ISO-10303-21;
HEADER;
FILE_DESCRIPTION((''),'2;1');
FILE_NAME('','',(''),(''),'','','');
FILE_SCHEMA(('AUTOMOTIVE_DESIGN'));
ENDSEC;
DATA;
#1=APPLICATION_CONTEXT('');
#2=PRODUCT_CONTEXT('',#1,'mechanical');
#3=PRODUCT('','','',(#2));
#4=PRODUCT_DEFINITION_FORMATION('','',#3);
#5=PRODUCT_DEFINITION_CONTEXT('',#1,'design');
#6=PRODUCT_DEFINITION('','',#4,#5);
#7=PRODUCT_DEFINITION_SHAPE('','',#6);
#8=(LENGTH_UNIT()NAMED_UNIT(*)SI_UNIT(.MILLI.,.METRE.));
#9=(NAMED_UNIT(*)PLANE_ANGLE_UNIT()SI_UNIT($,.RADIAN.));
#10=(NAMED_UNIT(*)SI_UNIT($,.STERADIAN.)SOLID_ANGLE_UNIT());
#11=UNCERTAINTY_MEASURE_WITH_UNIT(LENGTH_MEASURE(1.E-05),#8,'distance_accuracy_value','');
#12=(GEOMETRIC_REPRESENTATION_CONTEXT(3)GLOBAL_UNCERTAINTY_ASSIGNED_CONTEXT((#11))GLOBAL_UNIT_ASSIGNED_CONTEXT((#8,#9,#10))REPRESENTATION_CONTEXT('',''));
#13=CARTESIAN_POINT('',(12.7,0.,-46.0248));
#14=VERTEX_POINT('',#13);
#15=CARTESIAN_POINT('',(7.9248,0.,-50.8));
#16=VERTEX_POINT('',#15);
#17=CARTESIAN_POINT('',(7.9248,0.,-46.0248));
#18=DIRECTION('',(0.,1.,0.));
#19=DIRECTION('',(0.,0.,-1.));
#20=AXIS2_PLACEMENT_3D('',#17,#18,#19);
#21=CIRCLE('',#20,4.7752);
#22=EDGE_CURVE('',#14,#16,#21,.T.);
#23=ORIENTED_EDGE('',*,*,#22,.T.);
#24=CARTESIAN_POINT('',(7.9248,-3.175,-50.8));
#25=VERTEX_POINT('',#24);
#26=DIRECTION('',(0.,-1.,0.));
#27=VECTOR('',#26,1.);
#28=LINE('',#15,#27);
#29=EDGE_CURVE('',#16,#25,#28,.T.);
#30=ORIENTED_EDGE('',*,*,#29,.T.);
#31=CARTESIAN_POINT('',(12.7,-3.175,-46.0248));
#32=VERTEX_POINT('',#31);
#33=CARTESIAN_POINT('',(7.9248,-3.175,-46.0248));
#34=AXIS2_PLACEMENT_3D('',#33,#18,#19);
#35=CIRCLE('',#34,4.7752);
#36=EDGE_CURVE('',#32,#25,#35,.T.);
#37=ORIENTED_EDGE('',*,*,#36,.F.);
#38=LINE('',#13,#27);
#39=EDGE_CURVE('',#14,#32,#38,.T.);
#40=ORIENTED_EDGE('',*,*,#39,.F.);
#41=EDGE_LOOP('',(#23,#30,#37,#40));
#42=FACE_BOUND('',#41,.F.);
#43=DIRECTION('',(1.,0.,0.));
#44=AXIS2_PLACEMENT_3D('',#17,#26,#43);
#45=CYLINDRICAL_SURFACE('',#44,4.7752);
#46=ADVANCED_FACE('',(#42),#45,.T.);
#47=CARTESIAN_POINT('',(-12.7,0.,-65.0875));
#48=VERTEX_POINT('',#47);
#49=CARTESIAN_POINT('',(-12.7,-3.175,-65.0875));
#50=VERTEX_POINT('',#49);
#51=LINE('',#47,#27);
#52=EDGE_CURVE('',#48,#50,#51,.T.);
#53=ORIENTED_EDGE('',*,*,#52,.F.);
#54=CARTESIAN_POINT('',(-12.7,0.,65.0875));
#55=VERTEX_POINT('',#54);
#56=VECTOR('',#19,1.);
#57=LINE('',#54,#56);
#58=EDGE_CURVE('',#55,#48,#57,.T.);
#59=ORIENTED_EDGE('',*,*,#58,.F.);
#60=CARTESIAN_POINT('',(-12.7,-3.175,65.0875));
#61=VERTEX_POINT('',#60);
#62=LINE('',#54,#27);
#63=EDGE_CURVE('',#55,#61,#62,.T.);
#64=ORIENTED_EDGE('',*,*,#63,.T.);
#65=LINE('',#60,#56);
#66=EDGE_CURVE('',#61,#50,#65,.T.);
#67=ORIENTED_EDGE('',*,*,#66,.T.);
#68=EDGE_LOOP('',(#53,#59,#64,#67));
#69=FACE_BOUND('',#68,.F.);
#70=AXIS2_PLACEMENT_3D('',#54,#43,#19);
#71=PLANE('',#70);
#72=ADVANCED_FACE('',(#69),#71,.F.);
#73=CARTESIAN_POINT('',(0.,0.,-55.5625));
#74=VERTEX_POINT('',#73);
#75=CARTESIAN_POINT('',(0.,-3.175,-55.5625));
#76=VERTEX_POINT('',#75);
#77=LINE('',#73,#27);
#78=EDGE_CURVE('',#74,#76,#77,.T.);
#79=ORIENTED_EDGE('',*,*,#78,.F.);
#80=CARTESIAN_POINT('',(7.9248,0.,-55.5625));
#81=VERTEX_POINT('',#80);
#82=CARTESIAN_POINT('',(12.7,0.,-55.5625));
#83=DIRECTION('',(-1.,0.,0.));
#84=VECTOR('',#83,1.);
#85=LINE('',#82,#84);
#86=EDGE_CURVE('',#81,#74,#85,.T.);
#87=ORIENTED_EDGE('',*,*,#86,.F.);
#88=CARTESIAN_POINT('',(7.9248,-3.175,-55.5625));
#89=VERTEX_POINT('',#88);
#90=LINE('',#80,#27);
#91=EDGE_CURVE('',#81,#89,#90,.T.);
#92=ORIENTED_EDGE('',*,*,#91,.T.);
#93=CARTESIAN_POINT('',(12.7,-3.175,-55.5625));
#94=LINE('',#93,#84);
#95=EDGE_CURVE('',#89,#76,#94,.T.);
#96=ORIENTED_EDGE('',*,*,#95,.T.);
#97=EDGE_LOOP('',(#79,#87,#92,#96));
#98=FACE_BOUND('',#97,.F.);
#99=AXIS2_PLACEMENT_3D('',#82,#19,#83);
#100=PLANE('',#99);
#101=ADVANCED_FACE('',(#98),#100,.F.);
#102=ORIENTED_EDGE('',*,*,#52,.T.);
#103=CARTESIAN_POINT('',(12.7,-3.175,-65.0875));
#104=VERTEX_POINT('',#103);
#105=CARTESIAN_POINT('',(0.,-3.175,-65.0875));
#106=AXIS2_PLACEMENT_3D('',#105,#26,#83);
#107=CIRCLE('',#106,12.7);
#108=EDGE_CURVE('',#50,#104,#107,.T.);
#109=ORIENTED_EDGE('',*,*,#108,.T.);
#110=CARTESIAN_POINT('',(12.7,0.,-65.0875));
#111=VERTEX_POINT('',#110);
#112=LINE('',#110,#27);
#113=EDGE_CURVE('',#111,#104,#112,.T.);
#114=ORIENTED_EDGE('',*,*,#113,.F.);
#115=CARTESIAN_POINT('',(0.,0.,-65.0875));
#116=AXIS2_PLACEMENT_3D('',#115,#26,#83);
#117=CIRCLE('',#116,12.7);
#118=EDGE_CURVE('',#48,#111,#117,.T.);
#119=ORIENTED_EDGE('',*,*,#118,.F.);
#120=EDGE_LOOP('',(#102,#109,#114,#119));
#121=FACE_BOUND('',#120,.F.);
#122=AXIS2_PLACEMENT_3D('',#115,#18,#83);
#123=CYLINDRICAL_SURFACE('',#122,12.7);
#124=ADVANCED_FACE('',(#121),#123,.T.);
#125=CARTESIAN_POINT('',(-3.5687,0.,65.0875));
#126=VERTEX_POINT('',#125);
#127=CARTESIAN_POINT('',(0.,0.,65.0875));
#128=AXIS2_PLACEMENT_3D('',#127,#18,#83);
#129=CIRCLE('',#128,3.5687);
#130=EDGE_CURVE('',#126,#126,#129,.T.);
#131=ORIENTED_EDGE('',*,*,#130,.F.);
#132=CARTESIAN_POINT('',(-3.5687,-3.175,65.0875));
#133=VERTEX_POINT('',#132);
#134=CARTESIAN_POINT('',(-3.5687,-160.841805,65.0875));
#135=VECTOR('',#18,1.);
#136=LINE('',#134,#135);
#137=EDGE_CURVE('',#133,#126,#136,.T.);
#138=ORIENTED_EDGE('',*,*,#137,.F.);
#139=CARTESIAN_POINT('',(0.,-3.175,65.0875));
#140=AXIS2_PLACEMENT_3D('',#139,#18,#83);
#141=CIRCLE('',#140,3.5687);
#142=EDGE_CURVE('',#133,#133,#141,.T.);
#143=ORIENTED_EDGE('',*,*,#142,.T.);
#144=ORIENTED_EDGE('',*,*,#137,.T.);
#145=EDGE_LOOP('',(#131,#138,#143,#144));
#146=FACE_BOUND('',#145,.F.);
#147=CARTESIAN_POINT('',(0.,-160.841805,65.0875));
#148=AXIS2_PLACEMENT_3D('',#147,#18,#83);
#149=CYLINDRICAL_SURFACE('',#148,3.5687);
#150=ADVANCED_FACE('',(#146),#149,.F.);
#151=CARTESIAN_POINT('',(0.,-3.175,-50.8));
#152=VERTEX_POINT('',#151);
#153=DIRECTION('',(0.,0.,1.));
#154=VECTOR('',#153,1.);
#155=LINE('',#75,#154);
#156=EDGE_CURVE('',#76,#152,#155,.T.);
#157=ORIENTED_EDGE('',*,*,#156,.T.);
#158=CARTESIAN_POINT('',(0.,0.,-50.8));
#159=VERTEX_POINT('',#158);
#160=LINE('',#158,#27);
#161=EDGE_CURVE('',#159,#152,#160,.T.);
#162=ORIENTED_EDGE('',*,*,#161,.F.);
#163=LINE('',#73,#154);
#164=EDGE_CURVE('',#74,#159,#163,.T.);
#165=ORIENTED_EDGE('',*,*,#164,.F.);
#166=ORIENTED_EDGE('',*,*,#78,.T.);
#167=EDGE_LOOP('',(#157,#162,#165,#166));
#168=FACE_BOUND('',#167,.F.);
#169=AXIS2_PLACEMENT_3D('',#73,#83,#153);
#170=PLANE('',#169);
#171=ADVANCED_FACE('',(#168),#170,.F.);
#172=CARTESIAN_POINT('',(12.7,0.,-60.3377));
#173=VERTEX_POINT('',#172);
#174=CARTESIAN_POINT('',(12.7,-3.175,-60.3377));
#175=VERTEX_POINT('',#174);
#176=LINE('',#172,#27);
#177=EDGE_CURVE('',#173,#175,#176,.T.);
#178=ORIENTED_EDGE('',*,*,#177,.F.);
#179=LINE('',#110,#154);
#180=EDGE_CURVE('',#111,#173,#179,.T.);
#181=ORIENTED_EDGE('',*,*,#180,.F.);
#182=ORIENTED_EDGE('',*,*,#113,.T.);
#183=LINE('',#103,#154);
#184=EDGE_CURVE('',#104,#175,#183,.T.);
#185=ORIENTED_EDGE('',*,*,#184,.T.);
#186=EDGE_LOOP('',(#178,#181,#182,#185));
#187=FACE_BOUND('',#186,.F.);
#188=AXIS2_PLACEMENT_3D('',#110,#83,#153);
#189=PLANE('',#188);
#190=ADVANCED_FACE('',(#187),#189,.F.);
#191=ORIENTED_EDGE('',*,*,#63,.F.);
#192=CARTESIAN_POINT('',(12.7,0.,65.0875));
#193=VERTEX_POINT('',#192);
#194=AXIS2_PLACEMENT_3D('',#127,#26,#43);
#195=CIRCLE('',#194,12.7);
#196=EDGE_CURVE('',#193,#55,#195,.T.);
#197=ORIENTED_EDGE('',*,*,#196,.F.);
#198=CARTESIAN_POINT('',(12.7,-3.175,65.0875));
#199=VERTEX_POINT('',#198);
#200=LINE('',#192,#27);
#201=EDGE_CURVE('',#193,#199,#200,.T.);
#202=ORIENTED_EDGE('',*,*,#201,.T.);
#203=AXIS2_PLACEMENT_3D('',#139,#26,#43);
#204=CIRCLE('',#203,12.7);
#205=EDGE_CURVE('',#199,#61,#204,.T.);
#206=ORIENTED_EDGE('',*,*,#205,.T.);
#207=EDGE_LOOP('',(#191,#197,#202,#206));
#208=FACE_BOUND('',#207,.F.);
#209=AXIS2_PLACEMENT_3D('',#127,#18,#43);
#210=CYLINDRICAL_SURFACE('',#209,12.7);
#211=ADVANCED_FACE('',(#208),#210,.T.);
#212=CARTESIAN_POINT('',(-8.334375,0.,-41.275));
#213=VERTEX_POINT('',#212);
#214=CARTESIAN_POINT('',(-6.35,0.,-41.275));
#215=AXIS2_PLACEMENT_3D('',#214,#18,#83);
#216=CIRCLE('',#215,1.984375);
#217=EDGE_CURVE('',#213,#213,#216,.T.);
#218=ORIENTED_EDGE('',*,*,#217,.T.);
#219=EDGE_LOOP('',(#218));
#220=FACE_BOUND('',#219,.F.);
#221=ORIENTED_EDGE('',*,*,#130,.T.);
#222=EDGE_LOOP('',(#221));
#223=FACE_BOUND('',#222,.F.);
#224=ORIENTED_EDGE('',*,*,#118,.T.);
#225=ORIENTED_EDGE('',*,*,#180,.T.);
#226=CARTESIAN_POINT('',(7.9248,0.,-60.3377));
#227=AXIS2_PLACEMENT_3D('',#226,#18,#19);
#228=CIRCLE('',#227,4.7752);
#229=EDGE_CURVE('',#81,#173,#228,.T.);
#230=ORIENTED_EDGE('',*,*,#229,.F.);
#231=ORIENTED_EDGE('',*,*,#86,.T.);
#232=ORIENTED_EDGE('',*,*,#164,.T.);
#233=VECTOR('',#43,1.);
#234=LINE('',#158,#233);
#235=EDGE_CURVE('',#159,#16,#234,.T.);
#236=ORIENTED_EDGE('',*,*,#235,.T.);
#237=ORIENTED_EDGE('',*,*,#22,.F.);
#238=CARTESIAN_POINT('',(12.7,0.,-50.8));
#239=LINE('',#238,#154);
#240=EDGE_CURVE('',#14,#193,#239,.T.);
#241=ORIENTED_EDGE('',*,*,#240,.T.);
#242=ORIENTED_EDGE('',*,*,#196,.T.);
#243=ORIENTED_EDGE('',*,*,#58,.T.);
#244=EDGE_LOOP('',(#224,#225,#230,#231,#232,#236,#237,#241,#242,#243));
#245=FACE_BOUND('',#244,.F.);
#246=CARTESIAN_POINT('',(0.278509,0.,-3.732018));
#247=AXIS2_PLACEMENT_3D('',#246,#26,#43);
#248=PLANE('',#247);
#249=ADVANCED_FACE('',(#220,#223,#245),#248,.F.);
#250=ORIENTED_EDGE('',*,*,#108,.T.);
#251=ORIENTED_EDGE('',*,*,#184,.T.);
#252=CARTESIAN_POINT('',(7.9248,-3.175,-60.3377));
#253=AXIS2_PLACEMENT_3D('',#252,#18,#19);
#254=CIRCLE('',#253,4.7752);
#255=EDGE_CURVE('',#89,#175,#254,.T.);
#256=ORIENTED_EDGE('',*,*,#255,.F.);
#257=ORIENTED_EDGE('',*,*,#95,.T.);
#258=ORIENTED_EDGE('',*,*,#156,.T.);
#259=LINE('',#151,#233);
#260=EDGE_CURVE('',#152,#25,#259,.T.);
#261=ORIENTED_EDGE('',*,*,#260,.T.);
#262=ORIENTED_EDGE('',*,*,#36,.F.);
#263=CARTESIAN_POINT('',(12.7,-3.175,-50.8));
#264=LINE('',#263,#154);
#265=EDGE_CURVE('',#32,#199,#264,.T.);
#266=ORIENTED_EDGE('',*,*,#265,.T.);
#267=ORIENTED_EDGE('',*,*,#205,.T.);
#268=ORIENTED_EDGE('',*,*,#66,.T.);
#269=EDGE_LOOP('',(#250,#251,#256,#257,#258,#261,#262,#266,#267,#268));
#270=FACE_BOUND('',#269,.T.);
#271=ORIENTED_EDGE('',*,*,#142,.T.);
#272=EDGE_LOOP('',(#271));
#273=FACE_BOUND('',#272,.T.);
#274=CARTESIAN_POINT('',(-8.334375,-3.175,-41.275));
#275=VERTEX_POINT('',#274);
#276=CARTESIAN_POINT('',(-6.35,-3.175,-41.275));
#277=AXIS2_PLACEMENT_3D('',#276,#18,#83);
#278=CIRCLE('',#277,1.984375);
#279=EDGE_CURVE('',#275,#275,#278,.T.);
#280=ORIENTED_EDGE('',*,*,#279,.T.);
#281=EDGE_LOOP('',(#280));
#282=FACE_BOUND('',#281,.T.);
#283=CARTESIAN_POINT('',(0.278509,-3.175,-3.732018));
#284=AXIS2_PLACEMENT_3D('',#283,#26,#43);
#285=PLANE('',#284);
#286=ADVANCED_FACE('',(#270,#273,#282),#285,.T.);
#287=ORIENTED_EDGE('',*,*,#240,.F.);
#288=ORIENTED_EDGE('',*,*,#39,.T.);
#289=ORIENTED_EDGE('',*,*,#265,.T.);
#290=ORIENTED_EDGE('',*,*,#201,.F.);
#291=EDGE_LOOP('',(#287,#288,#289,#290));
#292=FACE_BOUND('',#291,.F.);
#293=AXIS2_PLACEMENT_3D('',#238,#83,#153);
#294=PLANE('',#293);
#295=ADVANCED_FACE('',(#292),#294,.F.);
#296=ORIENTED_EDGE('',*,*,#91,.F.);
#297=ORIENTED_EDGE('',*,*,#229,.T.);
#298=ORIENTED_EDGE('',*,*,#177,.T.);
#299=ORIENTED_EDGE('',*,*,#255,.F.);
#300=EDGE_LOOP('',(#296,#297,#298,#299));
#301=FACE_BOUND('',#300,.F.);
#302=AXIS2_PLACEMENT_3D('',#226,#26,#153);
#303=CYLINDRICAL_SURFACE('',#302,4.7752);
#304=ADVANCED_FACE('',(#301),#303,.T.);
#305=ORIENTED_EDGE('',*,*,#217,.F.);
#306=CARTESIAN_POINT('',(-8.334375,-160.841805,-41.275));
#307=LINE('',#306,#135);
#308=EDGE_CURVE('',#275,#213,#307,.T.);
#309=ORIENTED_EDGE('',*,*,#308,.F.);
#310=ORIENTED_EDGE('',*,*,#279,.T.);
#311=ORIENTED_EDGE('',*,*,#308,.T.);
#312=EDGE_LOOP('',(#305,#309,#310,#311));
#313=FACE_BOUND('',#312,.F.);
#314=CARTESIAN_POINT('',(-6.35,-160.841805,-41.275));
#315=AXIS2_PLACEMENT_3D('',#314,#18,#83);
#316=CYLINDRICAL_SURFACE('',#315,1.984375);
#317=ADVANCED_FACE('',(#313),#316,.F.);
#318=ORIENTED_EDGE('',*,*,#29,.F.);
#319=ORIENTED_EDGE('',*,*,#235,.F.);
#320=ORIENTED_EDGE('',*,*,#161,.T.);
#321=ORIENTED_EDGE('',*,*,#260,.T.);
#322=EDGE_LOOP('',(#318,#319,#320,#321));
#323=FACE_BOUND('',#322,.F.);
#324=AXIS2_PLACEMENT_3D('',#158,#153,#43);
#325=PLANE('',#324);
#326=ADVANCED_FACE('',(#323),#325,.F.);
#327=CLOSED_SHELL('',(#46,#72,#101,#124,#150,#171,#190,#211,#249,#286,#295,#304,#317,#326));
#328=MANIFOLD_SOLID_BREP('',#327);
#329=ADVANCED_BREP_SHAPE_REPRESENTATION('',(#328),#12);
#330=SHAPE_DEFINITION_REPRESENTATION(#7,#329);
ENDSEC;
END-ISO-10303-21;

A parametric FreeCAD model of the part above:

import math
import FreeCAD as App
import Part
import Sketcher
Q = App.Units.Quantity


def edges_at(feature, points):
    """Names of the edges that pass closest to the given points."""
    edges = feature.Shape.Edges
    near = lambda p: min(range(len(edges)), key=lambda i: edges[i].distToShape(Part.Vertex(*p))[0])
    return sorted({f"Edge{near(p) + 1}" for p in points})

doc = App.newDocument("Part")
body = doc.addObject("PartDesign::Body", "Body")

# Sketch on XZ plane
sketch1 = doc.addObject("Sketcher::SketchObject", "Sketch")
body.addObject(sketch1)
sketch1.AttachmentSupport = (doc.XZ_Plane, [""])
sketch1.MapMode = "FlatFace"
sketch1.addGeometry([
    Part.LineSegment(App.Vector(12.7, -50.8, 0), App.Vector(12.7, 65.1, 0)),  # 0
    Part.ArcOfCircle(Part.Circle(App.Vector(0, 65.1, 0), App.Vector(0, 0, 1), 12.7), math.radians(0), math.radians(180)),  # 1
    Part.LineSegment(App.Vector(-12.7, 65.1, 0), App.Vector(-12.7, -65.1, 0)),  # 2
    Part.ArcOfCircle(Part.Circle(App.Vector(0, -65.1, 0), App.Vector(0, 0, 1), 12.7), math.radians(180), math.radians(360)),  # 3
    Part.LineSegment(App.Vector(12.7, -65.1, 0), App.Vector(12.7, -55.6, 0)),  # 4
    Part.LineSegment(App.Vector(12.7, -55.6, 0), App.Vector(0, -55.6, 0)),  # 5
    Part.LineSegment(App.Vector(0, -55.6, 0), App.Vector(0, -50.8, 0)),  # 6
    Part.LineSegment(App.Vector(0, -50.8, 0), App.Vector(12.7, -50.8, 0)),  # 7
], False)
sketch1.addConstraint([
    Sketcher.Constraint("Tangent", 0, 2, 1, 1),
    Sketcher.Constraint("Tangent", 1, 2, 2, 1),
    Sketcher.Constraint("Tangent", 2, 2, 3, 1),
    Sketcher.Constraint("Tangent", 3, 2, 4, 1),
    Sketcher.Constraint("Coincident", 4, 2, 5, 1),
    Sketcher.Constraint("Coincident", 5, 2, 6, 1),
    Sketcher.Constraint("Coincident", 6, 2, 7, 1),
    Sketcher.Constraint("Coincident", 7, 2, 0, 1),
    Sketcher.Constraint("Vertical", 0),
    Sketcher.Constraint("Vertical", 2),
    Sketcher.Constraint("Vertical", 4),
    Sketcher.Constraint("Horizontal", 5),
    Sketcher.Constraint("Vertical", 6),
    Sketcher.Constraint("Horizontal", 7),
    Sketcher.Constraint("Equal", 1, 3),
    Sketcher.Constraint("Symmetric", 1, 3, 3, 3, -1, 1),
    Sketcher.Constraint("PointOnObject", 5, 2, -2),
    Sketcher.Constraint("Radius", 1, Q("0.5 in")),
    Sketcher.Constraint("DistanceY", 6, 2, -1, 1, Q("2 in")),
    Sketcher.Constraint("DistanceY", 0, 1, 0, 2, Q("4.5625 in")),
    Sketcher.Constraint("DistanceY", 4, 1, 4, 2, Q("0.375 in")),
])
pad1 = doc.addObject("PartDesign::Pad", "Pad")
body.addObject(pad1)
pad1.Profile = sketch1
pad1.Length = Q("0.125 in")

# Sketch on XZ plane
sketch2 = doc.addObject("Sketcher::SketchObject", "Sketch001")
body.addObject(sketch2)
sketch2.AttachmentSupport = (doc.XZ_Plane, [""])
sketch2.MapMode = "FlatFace"
sketch2.AttachmentOffset = App.Placement(App.Vector(0, 0, 0.125 * 25.4), App.Rotation())
sketch2.addGeometry(Part.Circle(App.Vector(0, 65.1, 0), App.Vector(0, 0, 1), 3.6), False)
sketch2.addConstraint([
    Sketcher.Constraint("PointOnObject", 0, 3, -2),
    Sketcher.Constraint("Diameter", 0, Q("0.281 in")),
    Sketcher.Constraint("DistanceY", -1, 1, 0, 3, Q("2.5625 in")),
])
doc.recompute()
hole = doc.addObject("PartDesign::Hole", "Hole")
body.addObject(hole)
hole.Profile = sketch2
hole.ThreadType = "None"
hole.Diameter = Q("0.281 in")
hole.DepthType = "ThroughAll"

# Sketch on XZ plane
sketch3 = doc.addObject("Sketcher::SketchObject", "Sketch002")
body.addObject(sketch3)
sketch3.AttachmentSupport = (doc.XZ_Plane, [""])
sketch3.MapMode = "FlatFace"
sketch3.AttachmentOffset = App.Placement(App.Vector(0, 0, 0.125 * 25.4), App.Rotation())
sketch3.addGeometry(Part.Circle(App.Vector(-6.3, -41.3, 0), App.Vector(0, 0, 1), 2), False)
sketch3.addConstraint([
    Sketcher.Constraint("Diameter", 0, Q("0.15625 in")),
    Sketcher.Constraint("DistanceX", 0, 3, -1, 1, Q("0.25 in")),
    Sketcher.Constraint("DistanceY", 0, 3, -1, 1, Q("1.625 in")),
])
doc.recompute()
hole2 = doc.addObject("PartDesign::Hole", "Hole001")
body.addObject(hole2)
hole2.Profile = sketch3
hole2.ThreadType = "None"
hole2.Diameter = Q("0.15625 in")
hole2.DepthType = "ThroughAll"
doc.recompute()

fillet = doc.addObject("PartDesign::Fillet", "Fillet")
body.addObject(fillet)
fillet.Base = (hole2, edges_at(hole2, [(12.7, -1.587, -55.562), (12.7, -1.587, -50.8)]))
fillet.Radius = Q("0.188 in")

doc.recompute()
